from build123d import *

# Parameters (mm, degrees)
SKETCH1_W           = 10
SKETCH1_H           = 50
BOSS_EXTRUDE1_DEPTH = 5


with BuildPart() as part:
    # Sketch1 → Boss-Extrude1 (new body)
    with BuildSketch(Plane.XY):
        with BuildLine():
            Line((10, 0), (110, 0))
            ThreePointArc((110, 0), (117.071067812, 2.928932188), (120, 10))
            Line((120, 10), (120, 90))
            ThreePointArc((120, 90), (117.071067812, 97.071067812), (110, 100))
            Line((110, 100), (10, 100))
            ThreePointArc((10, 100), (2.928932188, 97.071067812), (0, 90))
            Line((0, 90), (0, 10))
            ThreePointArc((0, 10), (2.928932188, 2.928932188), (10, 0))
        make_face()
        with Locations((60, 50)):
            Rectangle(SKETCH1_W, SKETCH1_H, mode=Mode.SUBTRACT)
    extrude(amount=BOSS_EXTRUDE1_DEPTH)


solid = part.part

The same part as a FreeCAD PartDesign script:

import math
import FreeCAD as App
import Part
import Sketcher
from FreeCAD import Vector

doc = App.newDocument("Part")
body = doc.addObject("PartDesign::Body", "Body")

# Sketch on XY plane
sketch1 = body.newObject("Sketcher::SketchObject", "Sketch")
sketch1.AttachmentSupport = (doc.getObject("XY_Plane"), [""])
sketch1.MapMode = "FlatFace"
sketch1.addGeometry(Part.LineSegment(Vector(10, 0, 0), Vector(110, 0, 0)), False)
sketch1.addGeometry(Part.ArcOfCircle(Part.Circle(Vector(110, 10, 0), Vector(0, 0, 1), 10), math.radians(-90), math.radians(0)), False)
sketch1.addGeometry(Part.LineSegment(Vector(120, 10, 0), Vector(120, 90, 0)), False)
sketch1.addGeometry(Part.ArcOfCircle(Part.Circle(Vector(110, 90, 0), Vector(0, 0, 1), 10), math.radians(0), math.radians(90)), False)
sketch1.addGeometry(Part.LineSegment(Vector(110, 100, 0), Vector(10, 100, 0)), False)
sketch1.addGeometry(Part.ArcOfCircle(Part.Circle(Vector(10, 90, 0), Vector(0, 0, 1), 10), math.radians(90), math.radians(180)), False)
sketch1.addGeometry(Part.LineSegment(Vector(0, 90, 0), Vector(0, 10, 0)), False)
sketch1.addGeometry(Part.ArcOfCircle(Part.Circle(Vector(10, 10, 0), Vector(0, 0, 1), 10), math.radians(180), math.radians(270)), False)
sketch1.addGeometry(Part.LineSegment(Vector(65, 25, 0), Vector(55, 25, 0)), False)
sketch1.addGeometry(Part.LineSegment(Vector(55, 25, 0), Vector(55, 75, 0)), False)
sketch1.addGeometry(Part.LineSegment(Vector(55, 75, 0), Vector(65, 75, 0)), False)
sketch1.addGeometry(Part.LineSegment(Vector(65, 75, 0), Vector(65, 25, 0)), False)
sketch1.addConstraint(Sketcher.Constraint("Tangent", 0, 2, 1, 1))
sketch1.addConstraint(Sketcher.Constraint("Tangent", 1, 2, 2, 1))
sketch1.addConstraint(Sketcher.Constraint("Tangent", 2, 2, 3, 1))
sketch1.addConstraint(Sketcher.Constraint("Tangent", 3, 2, 4, 1))
sketch1.addConstraint(Sketcher.Constraint("Tangent", 4, 2, 5, 1))
sketch1.addConstraint(Sketcher.Constraint("Tangent", 5, 2, 6, 1))
sketch1.addConstraint(Sketcher.Constraint("Tangent", 6, 2, 7, 1))
sketch1.addConstraint(Sketcher.Constraint("Tangent", 7, 2, 0, 1))
sketch1.addConstraint(Sketcher.Constraint("Coincident", 8, 2, 9, 1))
sketch1.addConstraint(Sketcher.Constraint("Coincident", 9, 2, 10, 1))
sketch1.addConstraint(Sketcher.Constraint("Coincident", 10, 2, 11, 1))
sketch1.addConstraint(Sketcher.Constraint("Coincident", 11, 2, 8, 1))
sketch1.addConstraint(Sketcher.Constraint("Horizontal", 0))
sketch1.addConstraint(Sketcher.Constraint("Vertical", 2))
sketch1.addConstraint(Sketcher.Constraint("Horizontal", 4))
sketch1.addConstraint(Sketcher.Constraint("Vertical", 6))
sketch1.addConstraint(Sketcher.Constraint("Horizontal", 8))
sketch1.addConstraint(Sketcher.Constraint("Vertical", 9))
sketch1.addConstraint(Sketcher.Constraint("Horizontal", 10))
sketch1.addConstraint(Sketcher.Constraint("Vertical", 11))
sketch1.addConstraint(Sketcher.Constraint("Equal", 1, 3))
sketch1.addConstraint(Sketcher.Constraint("Equal", 3, 5))
sketch1.addConstraint(Sketcher.Constraint("Equal", 5, 7))
sketch1.addConstraint(Sketcher.Constraint("PointOnObject", 0, 2, -1))
sketch1.addConstraint(Sketcher.Constraint("PointOnObject", 5, 2, -2))
sketch1.addConstraint(Sketcher.Constraint("Radius", 1, 10.0))
sketch1.addConstraint(Sketcher.Constraint("DistanceX", 0, 1, 0, 2, 100.0))
sketch1.addConstraint(Sketcher.Constraint("DistanceX", 8, 2, 8, 1, 10.0))
sketch1.addConstraint(Sketcher.Constraint("DistanceY", 2, 1, 2, 2, 80.0))
sketch1.addConstraint(Sketcher.Constraint("DistanceY", 9, 1, 9, 2, 50.0))
sketch1.addConstraint(Sketcher.Constraint("DistanceX", -1, 1, 8, 2, 55.0))
sketch1.addConstraint(Sketcher.Constraint("DistanceY", -1, 1, 8, 2, 25.0))
pad1 = body.newObject("PartDesign::Pad", "Pad")
pad1.Profile = sketch1
pad1.Length = 5

doc.recompute()
